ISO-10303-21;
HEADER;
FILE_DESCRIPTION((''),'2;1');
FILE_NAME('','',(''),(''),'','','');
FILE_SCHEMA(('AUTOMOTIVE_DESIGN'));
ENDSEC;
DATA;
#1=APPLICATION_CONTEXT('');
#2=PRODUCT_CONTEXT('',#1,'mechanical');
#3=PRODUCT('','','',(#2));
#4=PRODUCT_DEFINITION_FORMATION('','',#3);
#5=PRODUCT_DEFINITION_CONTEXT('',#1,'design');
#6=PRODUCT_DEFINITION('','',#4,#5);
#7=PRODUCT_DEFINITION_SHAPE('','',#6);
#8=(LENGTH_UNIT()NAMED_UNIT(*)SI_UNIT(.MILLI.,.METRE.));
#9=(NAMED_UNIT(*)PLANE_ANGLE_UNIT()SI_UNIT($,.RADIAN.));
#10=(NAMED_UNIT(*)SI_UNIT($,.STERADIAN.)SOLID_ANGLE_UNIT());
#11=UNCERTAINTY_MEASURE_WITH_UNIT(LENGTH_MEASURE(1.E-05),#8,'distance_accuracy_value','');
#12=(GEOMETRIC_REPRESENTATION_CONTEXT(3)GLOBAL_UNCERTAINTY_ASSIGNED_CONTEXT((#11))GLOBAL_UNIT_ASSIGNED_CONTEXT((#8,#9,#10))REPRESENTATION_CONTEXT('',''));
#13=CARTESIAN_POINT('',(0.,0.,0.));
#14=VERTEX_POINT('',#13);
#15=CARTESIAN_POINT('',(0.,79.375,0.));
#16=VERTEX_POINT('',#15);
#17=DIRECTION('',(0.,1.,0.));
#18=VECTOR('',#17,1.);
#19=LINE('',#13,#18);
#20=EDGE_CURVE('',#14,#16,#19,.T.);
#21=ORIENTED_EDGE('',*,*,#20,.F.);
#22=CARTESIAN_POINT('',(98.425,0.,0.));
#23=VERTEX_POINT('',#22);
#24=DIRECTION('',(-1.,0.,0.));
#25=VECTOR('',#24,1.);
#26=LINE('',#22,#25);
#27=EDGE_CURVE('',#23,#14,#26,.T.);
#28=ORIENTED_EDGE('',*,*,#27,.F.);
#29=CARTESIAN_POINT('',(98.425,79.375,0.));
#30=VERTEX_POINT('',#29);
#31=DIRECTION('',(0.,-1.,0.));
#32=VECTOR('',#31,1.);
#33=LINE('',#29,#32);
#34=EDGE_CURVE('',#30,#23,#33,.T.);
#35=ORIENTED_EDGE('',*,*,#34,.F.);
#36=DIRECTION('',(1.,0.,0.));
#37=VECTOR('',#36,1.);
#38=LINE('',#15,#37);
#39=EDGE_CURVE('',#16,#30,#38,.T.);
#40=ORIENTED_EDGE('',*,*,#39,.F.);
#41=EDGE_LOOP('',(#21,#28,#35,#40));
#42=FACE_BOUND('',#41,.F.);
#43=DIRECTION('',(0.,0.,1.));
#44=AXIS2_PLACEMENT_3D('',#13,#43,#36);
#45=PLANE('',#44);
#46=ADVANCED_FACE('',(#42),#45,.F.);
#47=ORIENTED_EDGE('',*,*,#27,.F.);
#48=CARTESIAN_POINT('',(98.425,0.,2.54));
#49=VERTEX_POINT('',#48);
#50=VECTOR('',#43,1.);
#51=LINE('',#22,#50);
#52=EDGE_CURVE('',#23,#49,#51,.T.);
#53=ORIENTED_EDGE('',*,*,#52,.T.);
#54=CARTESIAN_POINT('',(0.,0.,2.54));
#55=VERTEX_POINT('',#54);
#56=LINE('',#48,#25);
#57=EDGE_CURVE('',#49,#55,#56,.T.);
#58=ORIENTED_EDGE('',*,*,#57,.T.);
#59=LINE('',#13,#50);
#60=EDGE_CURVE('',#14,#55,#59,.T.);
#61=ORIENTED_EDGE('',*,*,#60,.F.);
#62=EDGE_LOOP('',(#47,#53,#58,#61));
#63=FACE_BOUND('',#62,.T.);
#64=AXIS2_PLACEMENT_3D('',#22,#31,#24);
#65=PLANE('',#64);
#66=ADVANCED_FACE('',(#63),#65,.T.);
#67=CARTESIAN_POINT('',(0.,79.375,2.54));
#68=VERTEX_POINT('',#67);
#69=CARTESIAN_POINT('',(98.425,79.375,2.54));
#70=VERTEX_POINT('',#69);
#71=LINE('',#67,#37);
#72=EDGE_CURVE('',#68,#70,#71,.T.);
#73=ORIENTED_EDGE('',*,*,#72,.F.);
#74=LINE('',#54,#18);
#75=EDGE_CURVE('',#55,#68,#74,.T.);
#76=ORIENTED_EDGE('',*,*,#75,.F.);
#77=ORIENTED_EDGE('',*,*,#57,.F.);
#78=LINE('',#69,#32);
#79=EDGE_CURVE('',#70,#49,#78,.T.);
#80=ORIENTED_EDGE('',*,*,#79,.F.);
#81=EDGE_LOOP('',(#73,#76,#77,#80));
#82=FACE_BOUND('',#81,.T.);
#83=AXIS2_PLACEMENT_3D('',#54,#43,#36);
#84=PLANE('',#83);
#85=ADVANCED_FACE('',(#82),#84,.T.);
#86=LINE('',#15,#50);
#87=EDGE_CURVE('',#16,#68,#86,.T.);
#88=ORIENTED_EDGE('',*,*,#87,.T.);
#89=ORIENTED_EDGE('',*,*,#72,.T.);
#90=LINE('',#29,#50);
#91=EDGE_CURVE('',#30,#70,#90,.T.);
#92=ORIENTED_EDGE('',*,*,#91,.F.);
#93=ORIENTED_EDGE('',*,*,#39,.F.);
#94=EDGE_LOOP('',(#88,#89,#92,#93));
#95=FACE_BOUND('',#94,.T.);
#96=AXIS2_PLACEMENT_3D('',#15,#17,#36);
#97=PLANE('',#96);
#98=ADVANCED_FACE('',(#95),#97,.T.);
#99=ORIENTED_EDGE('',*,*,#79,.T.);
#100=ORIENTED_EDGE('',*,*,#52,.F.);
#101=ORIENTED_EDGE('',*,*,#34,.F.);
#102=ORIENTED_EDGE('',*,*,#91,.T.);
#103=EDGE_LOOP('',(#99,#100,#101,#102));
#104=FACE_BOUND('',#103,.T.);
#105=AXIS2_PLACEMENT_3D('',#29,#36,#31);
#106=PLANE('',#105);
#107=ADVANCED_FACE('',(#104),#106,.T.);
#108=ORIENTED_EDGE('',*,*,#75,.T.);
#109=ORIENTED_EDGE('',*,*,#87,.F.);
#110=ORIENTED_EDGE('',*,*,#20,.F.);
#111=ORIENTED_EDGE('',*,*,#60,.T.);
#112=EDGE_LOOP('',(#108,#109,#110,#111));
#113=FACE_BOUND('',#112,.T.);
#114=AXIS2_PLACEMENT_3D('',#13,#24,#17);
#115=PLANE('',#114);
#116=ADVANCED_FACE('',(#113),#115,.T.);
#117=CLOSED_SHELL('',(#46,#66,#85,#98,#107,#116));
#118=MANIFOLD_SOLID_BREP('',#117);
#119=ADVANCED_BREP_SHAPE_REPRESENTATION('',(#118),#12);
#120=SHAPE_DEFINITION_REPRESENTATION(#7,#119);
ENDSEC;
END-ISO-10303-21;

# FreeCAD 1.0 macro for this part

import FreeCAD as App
import Part
import Sketcher

V = App.Vector
Q = App.Units.Quantity

doc = App.newDocument("Part")
params = doc.addObject("Spreadsheet::Sheet", "Params")
for row, (alias, value) in enumerate([
    ("sketch1_width", "3.875 in"),
    ("sketch1_height", "3.125 in"),
    ("pad1_length", "0.1 in"),
], start=1):
    params.set(f"A{row}", alias)
    params.set(f"B{row}", "=" + value)
    params.setAlias(f"B{row}", alias)

body = doc.addObject("PartDesign::Body", "Body")

# Sketch on XY plane
sketch1 = body.newObject("Sketcher::SketchObject", "Sketch")
sketch1.AttachmentSupport = (doc.getObject("XY_Plane"), [""])
sketch1.MapMode = "FlatFace"
sketch1.addGeometry(Part.LineSegment(V(0, 79, 0), V(0, 0, 0)), False)
sketch1.addGeometry(Part.LineSegment(V(0, 0, 0), V(98, 0, 0)), False)
sketch1.addGeometry(Part.LineSegment(V(98, 0, 0), V(98, 79, 0)), False)
sketch1.addGeometry(Part.LineSegment(V(98, 79, 0), V(0, 79, 0)), False)
sketch1.addConstraint(Sketcher.Constraint("Coincident", 0, 2, 1, 1))
sketch1.addConstraint(Sketcher.Constraint("Coincident", 1, 2, 2, 1))
sketch1.addConstraint(Sketcher.Constraint("Coincident", 2, 2, 3, 1))
sketch1.addConstraint(Sketcher.Constraint("Coincident", 3, 2, 0, 1))
sketch1.addConstraint(Sketcher.Constraint("Vertical", 0))
sketch1.addConstraint(Sketcher.Constraint("Horizontal", 1))
sketch1.addConstraint(Sketcher.Constraint("Vertical", 2))
sketch1.addConstraint(Sketcher.Constraint("Horizontal", 3))
sketch1.addConstraint(Sketcher.Constraint("Coincident", 0, 2, -1, 1))
sketch1.addConstraint(Sketcher.Constraint("DistanceX", 1, 1, 1, 2, Q("3.875 in")))
sketch1.addConstraint(Sketcher.Constraint("DistanceY", 0, 2, 0, 1, Q("3.125 in")))
sketch1.setExpression("Constraints[9]", "Params.sketch1_width")
sketch1.setExpression("Constraints[10]", "Params.sketch1_height")
pad1 = body.newObject("PartDesign::Pad", "Pad")
pad1.Profile = sketch1
pad1.setExpression("Length", "Params.pad1_length")

doc.recompute()
